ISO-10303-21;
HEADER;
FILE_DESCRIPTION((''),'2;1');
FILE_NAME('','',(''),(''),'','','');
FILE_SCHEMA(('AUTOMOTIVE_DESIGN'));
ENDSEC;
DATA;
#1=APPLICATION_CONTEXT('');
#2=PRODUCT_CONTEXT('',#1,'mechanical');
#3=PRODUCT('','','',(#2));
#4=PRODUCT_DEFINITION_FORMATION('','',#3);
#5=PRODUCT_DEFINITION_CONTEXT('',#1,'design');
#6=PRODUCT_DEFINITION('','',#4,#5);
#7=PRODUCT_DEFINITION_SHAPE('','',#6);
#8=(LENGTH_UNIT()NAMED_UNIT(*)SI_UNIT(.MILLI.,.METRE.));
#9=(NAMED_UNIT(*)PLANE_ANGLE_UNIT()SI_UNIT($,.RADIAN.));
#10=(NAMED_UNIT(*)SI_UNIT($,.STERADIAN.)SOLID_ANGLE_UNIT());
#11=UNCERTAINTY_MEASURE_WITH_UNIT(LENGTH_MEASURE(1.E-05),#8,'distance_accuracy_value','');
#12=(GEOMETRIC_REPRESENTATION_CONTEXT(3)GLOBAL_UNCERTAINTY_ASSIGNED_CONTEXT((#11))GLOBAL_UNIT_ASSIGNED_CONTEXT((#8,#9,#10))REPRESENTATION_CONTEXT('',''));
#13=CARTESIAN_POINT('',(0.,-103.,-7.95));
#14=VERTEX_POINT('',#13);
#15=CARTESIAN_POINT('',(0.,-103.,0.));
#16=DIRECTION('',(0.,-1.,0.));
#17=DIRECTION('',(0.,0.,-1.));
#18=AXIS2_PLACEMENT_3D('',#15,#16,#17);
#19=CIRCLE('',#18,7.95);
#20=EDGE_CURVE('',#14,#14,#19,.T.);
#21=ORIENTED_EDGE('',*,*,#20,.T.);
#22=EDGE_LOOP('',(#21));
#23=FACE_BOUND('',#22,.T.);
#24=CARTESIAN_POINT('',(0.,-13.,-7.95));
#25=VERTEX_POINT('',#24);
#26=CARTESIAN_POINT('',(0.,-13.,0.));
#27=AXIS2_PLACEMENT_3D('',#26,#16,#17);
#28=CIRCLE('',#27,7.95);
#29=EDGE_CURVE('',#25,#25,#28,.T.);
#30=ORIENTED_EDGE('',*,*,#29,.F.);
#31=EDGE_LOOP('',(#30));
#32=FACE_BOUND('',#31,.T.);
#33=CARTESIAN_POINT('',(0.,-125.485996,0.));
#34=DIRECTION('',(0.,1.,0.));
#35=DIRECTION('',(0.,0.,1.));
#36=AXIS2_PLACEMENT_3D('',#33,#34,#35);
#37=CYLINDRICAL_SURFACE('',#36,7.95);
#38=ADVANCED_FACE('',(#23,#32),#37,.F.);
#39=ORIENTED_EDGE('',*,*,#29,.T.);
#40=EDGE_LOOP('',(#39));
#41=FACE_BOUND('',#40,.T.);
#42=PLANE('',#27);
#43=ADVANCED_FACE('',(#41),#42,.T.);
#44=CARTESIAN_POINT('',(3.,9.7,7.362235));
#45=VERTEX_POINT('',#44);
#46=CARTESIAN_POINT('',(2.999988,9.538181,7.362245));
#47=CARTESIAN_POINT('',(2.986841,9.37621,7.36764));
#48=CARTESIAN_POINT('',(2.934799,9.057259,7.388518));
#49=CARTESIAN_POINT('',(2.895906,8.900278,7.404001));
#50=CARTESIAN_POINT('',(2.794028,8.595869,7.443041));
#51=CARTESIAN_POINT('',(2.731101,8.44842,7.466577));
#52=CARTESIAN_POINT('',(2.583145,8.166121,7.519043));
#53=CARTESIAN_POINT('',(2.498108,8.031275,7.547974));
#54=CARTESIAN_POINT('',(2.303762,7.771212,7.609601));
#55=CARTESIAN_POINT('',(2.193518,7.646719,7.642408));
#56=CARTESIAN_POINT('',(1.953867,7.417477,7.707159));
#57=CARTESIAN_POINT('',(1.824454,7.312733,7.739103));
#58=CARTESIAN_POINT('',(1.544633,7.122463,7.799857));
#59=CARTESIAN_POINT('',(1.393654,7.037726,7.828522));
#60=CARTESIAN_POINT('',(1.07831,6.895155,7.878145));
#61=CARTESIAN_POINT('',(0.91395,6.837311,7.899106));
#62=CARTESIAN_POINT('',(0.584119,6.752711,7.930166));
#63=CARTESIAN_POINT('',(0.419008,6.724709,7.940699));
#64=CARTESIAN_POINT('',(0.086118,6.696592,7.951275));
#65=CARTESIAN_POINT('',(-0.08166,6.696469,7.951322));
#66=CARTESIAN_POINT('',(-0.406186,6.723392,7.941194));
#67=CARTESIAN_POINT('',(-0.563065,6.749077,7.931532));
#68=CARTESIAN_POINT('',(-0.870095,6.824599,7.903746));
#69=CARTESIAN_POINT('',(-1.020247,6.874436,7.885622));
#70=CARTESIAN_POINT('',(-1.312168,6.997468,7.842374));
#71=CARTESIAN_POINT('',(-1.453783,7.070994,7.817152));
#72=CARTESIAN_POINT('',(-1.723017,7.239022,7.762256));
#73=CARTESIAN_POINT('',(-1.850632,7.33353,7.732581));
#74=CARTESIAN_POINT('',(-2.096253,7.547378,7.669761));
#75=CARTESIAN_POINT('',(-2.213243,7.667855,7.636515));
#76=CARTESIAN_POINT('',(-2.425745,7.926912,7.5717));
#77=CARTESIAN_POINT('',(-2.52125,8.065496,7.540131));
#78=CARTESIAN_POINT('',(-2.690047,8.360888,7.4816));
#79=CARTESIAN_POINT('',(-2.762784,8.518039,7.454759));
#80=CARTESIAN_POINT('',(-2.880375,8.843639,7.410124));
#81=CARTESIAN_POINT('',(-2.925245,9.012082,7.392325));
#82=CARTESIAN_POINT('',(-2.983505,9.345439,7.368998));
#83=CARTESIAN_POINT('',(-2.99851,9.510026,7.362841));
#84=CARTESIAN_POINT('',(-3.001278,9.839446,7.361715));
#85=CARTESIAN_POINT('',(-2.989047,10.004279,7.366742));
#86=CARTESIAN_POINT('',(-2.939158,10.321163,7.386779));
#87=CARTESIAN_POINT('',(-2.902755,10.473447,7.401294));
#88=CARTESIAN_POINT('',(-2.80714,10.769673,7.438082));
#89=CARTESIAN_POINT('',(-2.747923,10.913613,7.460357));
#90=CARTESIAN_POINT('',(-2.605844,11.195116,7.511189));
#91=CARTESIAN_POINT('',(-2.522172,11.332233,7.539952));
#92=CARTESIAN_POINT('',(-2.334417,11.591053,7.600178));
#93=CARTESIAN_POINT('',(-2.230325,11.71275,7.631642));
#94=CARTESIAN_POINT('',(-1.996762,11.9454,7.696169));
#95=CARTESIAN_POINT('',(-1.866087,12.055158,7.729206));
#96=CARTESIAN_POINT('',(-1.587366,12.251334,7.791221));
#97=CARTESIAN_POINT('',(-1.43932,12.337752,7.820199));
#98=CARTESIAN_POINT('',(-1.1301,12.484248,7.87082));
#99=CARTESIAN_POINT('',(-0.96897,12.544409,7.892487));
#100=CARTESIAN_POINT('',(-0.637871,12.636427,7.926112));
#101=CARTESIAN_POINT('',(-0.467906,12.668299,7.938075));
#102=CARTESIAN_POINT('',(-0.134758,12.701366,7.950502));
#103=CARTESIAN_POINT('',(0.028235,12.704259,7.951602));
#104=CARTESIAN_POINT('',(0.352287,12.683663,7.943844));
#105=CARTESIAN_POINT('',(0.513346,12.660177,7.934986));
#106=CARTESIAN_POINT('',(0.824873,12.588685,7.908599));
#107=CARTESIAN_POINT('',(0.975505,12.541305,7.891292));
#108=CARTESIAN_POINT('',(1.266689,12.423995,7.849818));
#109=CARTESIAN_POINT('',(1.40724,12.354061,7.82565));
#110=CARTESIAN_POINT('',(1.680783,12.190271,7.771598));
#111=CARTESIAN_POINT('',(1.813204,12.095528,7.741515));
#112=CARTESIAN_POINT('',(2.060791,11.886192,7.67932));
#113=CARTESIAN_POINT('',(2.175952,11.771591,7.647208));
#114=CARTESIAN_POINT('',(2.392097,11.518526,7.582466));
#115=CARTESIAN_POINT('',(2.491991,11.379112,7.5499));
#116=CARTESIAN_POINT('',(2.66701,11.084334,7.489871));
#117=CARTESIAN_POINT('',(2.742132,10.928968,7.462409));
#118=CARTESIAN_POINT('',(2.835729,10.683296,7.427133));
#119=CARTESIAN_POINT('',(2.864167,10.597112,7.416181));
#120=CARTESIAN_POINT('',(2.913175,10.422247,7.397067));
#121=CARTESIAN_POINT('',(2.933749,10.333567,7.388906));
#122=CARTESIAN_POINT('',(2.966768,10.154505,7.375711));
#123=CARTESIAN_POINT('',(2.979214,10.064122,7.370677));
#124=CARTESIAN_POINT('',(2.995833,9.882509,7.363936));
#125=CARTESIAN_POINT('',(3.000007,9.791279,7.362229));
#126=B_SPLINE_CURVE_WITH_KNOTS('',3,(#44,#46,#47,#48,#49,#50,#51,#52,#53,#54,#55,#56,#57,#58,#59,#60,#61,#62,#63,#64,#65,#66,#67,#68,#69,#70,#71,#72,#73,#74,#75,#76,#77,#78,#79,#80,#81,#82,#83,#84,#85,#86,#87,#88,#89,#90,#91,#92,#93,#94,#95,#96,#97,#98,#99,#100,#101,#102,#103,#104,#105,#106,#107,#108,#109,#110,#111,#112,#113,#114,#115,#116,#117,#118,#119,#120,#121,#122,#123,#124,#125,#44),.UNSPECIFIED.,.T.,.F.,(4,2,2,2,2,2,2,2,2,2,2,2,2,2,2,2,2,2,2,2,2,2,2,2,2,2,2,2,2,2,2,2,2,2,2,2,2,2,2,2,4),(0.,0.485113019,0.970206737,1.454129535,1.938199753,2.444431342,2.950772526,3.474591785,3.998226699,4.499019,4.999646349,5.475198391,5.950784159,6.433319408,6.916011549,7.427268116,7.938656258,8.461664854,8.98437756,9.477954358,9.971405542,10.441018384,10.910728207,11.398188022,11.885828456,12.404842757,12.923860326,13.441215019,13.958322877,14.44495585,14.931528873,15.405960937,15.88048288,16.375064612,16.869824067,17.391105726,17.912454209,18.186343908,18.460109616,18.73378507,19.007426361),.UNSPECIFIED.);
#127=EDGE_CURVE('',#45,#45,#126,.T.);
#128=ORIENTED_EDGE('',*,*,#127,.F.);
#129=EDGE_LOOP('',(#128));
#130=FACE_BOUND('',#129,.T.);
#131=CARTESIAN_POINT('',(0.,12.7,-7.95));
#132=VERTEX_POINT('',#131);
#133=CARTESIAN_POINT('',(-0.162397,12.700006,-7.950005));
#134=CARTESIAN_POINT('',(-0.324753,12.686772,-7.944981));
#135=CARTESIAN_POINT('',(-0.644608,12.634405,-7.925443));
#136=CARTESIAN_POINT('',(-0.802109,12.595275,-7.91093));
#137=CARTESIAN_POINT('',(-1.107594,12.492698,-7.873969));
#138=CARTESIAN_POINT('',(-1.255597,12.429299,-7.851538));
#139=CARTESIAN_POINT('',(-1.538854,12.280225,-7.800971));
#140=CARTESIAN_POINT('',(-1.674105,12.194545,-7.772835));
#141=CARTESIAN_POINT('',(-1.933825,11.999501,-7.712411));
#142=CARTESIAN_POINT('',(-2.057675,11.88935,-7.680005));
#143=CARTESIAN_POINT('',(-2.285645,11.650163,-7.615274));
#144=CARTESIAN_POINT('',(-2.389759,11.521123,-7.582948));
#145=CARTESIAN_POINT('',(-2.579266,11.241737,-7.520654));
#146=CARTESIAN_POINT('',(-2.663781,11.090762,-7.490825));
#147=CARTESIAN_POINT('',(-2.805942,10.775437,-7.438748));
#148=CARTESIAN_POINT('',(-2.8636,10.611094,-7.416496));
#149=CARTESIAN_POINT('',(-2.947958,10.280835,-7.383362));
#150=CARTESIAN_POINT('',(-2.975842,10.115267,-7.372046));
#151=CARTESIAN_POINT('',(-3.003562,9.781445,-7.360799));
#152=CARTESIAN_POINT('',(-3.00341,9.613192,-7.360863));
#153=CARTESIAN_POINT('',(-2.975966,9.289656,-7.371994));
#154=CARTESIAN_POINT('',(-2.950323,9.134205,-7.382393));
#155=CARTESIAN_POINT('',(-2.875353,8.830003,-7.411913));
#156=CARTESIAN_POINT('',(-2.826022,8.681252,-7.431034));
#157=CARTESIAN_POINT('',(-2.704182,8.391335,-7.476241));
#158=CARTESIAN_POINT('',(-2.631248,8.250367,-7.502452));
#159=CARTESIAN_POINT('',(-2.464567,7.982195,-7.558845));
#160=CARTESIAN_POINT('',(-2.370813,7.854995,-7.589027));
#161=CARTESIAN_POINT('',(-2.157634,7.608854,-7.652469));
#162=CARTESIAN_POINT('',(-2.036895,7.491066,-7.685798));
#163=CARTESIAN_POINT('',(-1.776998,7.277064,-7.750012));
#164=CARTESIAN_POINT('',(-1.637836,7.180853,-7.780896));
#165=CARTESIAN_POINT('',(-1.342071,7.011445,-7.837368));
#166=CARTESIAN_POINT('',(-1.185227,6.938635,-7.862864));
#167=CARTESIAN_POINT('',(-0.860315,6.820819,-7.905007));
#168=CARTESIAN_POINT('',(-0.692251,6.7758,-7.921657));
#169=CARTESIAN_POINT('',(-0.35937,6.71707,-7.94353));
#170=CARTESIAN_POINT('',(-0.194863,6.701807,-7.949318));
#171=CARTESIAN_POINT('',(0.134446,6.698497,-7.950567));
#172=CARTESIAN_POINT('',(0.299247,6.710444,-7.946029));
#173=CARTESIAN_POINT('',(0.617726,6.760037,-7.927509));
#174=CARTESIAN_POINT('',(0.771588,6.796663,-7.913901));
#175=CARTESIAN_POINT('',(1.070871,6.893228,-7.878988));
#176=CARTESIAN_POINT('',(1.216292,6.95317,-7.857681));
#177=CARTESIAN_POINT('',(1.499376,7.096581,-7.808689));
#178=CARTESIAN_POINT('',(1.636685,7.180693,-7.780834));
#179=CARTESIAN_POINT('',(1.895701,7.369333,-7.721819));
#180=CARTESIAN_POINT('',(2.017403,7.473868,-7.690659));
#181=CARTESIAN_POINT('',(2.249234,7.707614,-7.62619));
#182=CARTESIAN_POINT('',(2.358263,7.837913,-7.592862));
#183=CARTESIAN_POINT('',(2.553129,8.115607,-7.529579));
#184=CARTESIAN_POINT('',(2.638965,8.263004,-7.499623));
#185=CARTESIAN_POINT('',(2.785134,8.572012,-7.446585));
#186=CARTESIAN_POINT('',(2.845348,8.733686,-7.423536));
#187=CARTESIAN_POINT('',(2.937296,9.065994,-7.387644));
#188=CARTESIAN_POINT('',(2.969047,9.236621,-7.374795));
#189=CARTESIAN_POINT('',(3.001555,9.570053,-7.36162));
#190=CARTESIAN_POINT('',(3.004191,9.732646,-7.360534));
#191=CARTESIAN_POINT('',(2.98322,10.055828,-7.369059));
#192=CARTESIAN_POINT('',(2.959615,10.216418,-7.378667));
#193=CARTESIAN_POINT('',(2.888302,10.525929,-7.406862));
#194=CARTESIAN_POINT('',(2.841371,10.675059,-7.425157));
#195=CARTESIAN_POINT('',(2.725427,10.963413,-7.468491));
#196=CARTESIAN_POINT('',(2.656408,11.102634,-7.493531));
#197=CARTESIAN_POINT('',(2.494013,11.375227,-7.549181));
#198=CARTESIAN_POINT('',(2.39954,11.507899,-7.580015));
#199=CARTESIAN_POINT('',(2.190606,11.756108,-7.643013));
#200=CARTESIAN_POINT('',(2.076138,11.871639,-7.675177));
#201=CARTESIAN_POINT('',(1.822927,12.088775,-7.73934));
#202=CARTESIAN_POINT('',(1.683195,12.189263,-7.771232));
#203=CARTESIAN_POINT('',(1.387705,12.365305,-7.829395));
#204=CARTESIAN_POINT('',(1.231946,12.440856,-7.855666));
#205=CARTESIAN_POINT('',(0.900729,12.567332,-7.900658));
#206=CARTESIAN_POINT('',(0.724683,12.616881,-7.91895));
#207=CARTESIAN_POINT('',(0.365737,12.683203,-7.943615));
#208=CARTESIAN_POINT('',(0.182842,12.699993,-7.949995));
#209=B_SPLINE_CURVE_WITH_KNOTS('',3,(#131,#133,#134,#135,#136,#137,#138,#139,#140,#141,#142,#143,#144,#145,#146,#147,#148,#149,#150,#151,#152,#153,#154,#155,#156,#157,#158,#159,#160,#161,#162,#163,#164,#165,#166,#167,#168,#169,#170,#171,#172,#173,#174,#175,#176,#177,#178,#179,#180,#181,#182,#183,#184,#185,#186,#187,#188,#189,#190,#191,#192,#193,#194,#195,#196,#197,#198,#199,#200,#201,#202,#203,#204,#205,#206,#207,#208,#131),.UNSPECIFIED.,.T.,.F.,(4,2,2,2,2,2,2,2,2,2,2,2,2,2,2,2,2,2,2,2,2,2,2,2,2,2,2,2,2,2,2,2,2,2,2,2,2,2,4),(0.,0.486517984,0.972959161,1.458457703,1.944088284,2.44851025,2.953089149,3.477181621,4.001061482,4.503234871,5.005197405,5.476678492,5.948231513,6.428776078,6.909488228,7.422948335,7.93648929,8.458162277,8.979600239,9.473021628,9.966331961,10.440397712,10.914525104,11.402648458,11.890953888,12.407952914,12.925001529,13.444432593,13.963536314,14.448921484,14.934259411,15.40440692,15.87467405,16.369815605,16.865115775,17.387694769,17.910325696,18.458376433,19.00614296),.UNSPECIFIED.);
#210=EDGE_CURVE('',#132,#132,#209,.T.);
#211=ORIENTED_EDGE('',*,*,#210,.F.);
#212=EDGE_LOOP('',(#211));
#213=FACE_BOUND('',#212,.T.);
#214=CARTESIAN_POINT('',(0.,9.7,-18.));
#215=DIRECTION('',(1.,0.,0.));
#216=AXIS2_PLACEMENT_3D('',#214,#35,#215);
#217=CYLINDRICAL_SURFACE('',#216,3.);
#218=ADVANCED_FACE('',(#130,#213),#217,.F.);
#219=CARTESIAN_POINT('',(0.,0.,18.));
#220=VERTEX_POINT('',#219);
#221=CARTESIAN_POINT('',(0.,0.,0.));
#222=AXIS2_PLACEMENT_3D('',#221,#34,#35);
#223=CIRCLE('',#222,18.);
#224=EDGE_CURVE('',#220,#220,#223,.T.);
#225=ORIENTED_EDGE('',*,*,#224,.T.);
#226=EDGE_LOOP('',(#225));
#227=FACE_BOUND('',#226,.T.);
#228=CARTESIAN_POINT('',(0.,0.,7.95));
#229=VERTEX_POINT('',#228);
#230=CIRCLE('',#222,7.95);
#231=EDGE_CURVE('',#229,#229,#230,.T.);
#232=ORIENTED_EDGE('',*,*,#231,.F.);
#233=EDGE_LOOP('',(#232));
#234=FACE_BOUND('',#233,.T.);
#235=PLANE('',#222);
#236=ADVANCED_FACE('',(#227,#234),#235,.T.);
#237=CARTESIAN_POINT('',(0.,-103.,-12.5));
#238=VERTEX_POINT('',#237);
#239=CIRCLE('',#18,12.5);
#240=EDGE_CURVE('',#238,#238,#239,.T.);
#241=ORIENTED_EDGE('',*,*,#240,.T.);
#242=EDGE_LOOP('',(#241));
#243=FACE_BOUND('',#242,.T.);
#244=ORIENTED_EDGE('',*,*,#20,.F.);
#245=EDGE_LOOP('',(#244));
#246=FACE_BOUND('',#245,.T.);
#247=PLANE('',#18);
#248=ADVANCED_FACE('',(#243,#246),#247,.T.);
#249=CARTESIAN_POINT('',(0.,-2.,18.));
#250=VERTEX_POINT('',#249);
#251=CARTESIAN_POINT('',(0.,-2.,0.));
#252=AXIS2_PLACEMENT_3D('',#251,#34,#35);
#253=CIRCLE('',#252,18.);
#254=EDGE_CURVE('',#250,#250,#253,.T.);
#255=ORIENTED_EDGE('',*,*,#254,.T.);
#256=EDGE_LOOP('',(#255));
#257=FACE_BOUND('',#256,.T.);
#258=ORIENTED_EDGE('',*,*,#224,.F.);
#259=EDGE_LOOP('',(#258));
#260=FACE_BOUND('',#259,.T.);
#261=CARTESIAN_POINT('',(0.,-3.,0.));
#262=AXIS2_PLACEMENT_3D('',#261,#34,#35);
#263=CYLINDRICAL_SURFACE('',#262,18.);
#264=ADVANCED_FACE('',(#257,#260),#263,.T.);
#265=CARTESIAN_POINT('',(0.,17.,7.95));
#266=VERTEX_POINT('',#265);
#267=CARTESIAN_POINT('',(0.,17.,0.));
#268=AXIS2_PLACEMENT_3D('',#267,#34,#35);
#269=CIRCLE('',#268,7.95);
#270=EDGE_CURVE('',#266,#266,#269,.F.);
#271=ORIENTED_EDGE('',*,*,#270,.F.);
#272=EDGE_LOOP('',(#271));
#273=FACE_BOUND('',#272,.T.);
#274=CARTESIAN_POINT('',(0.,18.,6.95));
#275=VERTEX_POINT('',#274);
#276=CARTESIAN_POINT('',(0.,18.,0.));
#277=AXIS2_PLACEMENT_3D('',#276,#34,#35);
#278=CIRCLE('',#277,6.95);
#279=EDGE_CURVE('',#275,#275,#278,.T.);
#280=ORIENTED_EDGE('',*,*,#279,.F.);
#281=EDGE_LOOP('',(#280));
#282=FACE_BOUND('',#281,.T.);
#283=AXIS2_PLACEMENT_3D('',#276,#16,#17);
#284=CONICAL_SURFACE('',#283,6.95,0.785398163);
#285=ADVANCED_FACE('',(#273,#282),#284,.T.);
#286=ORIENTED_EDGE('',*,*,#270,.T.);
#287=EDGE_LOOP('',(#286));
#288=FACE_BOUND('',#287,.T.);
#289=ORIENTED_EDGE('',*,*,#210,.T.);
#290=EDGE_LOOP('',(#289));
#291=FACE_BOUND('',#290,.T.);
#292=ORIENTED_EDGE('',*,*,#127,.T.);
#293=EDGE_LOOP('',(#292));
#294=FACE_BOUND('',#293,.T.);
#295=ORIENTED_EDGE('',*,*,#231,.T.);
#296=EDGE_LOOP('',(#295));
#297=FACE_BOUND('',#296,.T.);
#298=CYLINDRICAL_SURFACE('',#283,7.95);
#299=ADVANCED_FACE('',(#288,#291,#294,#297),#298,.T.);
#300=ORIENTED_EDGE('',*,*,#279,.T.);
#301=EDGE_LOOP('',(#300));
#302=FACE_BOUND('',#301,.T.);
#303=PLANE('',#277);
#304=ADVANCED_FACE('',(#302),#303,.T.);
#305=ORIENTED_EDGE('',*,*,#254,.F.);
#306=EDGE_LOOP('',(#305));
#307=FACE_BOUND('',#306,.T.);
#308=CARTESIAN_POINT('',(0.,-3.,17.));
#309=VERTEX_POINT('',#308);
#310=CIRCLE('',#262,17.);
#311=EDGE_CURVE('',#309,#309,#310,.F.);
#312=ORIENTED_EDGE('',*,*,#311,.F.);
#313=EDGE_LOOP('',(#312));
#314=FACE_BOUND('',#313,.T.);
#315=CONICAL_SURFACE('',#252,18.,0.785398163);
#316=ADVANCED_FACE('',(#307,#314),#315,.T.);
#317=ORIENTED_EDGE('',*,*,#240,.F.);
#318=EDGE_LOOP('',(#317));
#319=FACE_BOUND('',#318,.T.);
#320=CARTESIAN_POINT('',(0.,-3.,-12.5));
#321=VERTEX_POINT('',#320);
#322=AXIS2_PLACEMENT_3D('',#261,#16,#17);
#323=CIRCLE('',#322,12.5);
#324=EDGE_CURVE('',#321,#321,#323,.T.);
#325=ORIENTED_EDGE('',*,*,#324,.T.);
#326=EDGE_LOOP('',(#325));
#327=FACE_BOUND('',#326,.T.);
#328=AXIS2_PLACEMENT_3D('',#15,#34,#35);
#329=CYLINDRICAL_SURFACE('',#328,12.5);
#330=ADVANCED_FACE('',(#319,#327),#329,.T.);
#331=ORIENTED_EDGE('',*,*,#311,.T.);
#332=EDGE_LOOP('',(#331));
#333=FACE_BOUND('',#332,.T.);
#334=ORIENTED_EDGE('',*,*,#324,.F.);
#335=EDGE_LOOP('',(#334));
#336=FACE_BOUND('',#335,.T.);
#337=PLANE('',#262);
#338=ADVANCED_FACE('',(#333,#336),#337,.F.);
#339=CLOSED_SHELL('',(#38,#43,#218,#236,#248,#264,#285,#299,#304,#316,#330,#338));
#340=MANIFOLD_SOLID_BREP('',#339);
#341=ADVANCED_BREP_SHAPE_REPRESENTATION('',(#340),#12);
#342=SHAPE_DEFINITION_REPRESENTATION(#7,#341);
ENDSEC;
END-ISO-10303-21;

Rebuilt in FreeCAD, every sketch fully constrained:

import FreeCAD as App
import Part
import Sketcher
Q = App.Units.Quantity


def edges_at(feature, points):
    """Names of the edges that pass closest to the given points."""
    edges = feature.Shape.Edges
    near = lambda p: min(range(len(edges)), key=lambda i: edges[i].distToShape(Part.Vertex(*p))[0])
    return sorted({f"Edge{near(p) + 1}" for p in points})

doc = App.newDocument("Part")
params = doc.addObject("Spreadsheet::Sheet", "Params")
for row, (alias, value) in enumerate([
    ("sketch1_diameter", "15.9 mm"),
    ("pad1_length", "18 mm"),
    ("chamfer_size", "1 mm"),
    ("sketch2_diameter", "36 mm"),
    ("pad2_length", "3 mm"),
    ("chamfer2_size", "1 mm"),
    ("sketch3_diameter", "25 mm"),
    ("pad3_length", "100 mm"),
    ("sketch4_diameter", "6 mm"),
    ("sketch5_diameter", "15.9 mm"),
    ("pocket2_length", "90 mm"),
], start=1):
    params.set(f"A{row}", alias)
    params.set(f"B{row}", "=" + value)
    params.setAlias(f"B{row}", alias)

body = doc.addObject("PartDesign::Body", "Body")

# Sketch on XZ plane
sketch1 = doc.addObject("Sketcher::SketchObject", "Sketch")
body.addObject(sketch1)
sketch1.AttachmentSupport = (doc.XZ_Plane, [""])
sketch1.MapMode = "FlatFace"
sketch1.addGeometry(Part.Circle(App.Vector(0, 0, 0), App.Vector(0, 0, 1), 7.95), False)
sketch1.addConstraint(Sketcher.Constraint("Coincident", 0, 3, -1, 1))
sketch1.addConstraint(Sketcher.Constraint("Diameter", 0, Q("15.9 mm")))
sketch1.setExpression("Constraints[1]", "Params.sketch1_diameter")
pad1 = doc.addObject("PartDesign::Pad", "Pad")
body.addObject(pad1)
pad1.Profile = sketch1
pad1.setExpression("Length", "Params.pad1_length")
pad1.Reversed = True
doc.recompute()

chamfer = doc.addObject("PartDesign::Chamfer", "Chamfer")
body.addObject(chamfer)
chamfer.Base = (pad1, edges_at(pad1, [(0, 18, -7.95)]))
chamfer.setExpression("Size", "Params.chamfer_size")

# Sketch on XZ plane
sketch2 = doc.addObject("Sketcher::SketchObject", "Sketch001")
body.addObject(sketch2)
sketch2.AttachmentSupport = (doc.XZ_Plane, [""])
sketch2.MapMode = "FlatFace"
sketch2.addGeometry(Part.Circle(App.Vector(0, 0, 0), App.Vector(0, 0, 1), 18), False)
sketch2.addConstraint(Sketcher.Constraint("Coincident", 0, 3, -1, 1))
sketch2.addConstraint(Sketcher.Constraint("Diameter", 0, Q("36 mm")))
sketch2.setExpression("Constraints[1]", "Params.sketch2_diameter")
pad2 = doc.addObject("PartDesign::Pad", "Pad001")
body.addObject(pad2)
pad2.Profile = sketch2
pad2.setExpression("Length", "Params.pad2_length")
doc.recompute()

chamfer2 = doc.addObject("PartDesign::Chamfer", "Chamfer001")
body.addObject(chamfer2)
chamfer2.Base = (pad2, edges_at(pad2, [(0, -3, -18)]))
chamfer2.setExpression("Size", "Params.chamfer2_size")

# Sketch on XZ plane
sketch3 = doc.addObject("Sketcher::SketchObject", "Sketch002")
body.addObject(sketch3)
sketch3.AttachmentSupport = (doc.XZ_Plane, [""])
sketch3.MapMode = "FlatFace"
sketch3.AttachmentOffset = App.Placement(App.Vector(0, 0, 3), App.Rotation())
sketch3.addGeometry(Part.Circle(App.Vector(0, 0, 0), App.Vector(0, 0, 1), 12.5), False)
sketch3.addConstraint(Sketcher.Constraint("Coincident", 0, 3, -1, 1))
sketch3.addConstraint(Sketcher.Constraint("Diameter", 0, Q("25 mm")))
sketch3.setExpression("Constraints[1]", "Params.sketch3_diameter")
pad3 = doc.addObject("PartDesign::Pad", "Pad002")
body.addObject(pad3)
pad3.Profile = sketch3
pad3.setExpression("Length", "Params.pad3_length")

# Sketch on XY plane
sketch4 = doc.addObject("Sketcher::SketchObject", "Sketch003")
body.addObject(sketch4)
sketch4.AttachmentSupport = (doc.XY_Plane, [""])
sketch4.MapMode = "FlatFace"
sketch4.addGeometry(Part.Circle(App.Vector(0, 9.7, 0), App.Vector(0, 0, 1), 3), False)
sketch4.addConstraint(Sketcher.Constraint("PointOnObject", 0, 3, -2))
sketch4.addConstraint(Sketcher.Constraint("Diameter", 0, Q("6 mm")))
sketch4.addConstraint(Sketcher.Constraint("DistanceY", -1, 1, 0, 3, Q("9.7 mm")))
sketch4.setExpression("Constraints[1]", "Params.sketch4_diameter")
pocket1 = doc.addObject("PartDesign::Pocket", "Pocket")
body.addObject(pocket1)
pocket1.Profile = sketch4
pocket1.Type = "ThroughAll"
pocket1.Midplane = True

# Sketch on XZ plane
sketch5 = doc.addObject("Sketcher::SketchObject", "Sketch004")
body.addObject(sketch5)
sketch5.AttachmentSupport = (doc.XZ_Plane, [""])
sketch5.MapMode = "FlatFace"
sketch5.AttachmentOffset = App.Placement(App.Vector(0, 0, 103), App.Rotation())
sketch5.addGeometry(Part.Circle(App.Vector(0, 0, 0), App.Vector(0, 0, 1), 7.95), False)
sketch5.addConstraint(Sketcher.Constraint("Coincident", 0, 3, -1, 1))
sketch5.addConstraint(Sketcher.Constraint("Diameter", 0, Q("15.9 mm")))
sketch5.setExpression("Constraints[1]", "Params.sketch5_diameter")
pocket2 = doc.addObject("PartDesign::Pocket", "Pocket001")
body.addObject(pocket2)
pocket2.Profile = sketch5
pocket2.setExpression("Length", "Params.pocket2_length")

doc.recompute()
